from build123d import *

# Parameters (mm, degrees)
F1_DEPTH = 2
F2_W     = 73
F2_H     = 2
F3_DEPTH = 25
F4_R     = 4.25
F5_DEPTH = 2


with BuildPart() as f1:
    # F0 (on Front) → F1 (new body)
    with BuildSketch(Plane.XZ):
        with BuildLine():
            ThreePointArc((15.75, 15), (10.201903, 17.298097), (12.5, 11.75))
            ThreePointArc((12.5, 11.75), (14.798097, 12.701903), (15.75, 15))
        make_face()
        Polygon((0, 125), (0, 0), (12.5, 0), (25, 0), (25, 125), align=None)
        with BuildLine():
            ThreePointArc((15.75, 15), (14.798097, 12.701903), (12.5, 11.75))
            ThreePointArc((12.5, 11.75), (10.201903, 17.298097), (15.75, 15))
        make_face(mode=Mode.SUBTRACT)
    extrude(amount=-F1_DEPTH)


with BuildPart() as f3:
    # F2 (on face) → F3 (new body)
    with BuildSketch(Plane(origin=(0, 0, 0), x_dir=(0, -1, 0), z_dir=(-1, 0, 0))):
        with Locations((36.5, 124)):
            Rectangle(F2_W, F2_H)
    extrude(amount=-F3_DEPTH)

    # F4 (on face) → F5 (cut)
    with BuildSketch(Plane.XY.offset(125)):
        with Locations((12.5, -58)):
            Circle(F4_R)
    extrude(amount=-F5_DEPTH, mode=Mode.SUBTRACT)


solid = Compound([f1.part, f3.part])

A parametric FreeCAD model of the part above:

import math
import FreeCAD as App
import Part
import Sketcher
Q = App.Units.Quantity

doc = App.newDocument("Part")
body = doc.addObject("PartDesign::Body", "Body")

sketch1 = body.newObject("Sketcher::SketchObject", "Sketch")
sketch1.AttachmentSupport = (doc.getObject("XZ_Plane"), [""])
sketch1.MapMode = "FlatFace"
sketch1.addGeometry(Part.LineSegment(App.Vector(0, 125, 0), App.Vector(0, 0, 0)), False)
sketch1.addGeometry(Part.LineSegment(App.Vector(0, 0, 0), App.Vector(25, 0, 0)), False)
sketch1.addGeometry(Part.LineSegment(App.Vector(25, 0, 0), App.Vector(25, 125, 0)), False)
sketch1.addGeometry(Part.LineSegment(App.Vector(25, 125, 0), App.Vector(0, 125, 0)), False)
sketch1.addGeometry(Part.ArcOfCircle(Part.Circle(App.Vector(12.5, 15, 0), App.Vector(0, 0, 1), 3.2), math.radians(0), math.radians(270)), False)
sketch1.addGeometry(Part.ArcOfCircle(Part.Circle(App.Vector(12.5, 15, 0), App.Vector(0, 0, 1), 3.3), math.radians(-90), math.radians(0)), False)
sketch1.addConstraint(Sketcher.Constraint("Coincident", 0, 2, 1, 1))
sketch1.addConstraint(Sketcher.Constraint("Coincident", 1, 2, 2, 1))
sketch1.addConstraint(Sketcher.Constraint("Coincident", 2, 2, 3, 1))
sketch1.addConstraint(Sketcher.Constraint("Coincident", 3, 2, 0, 1))
sketch1.addConstraint(Sketcher.Constraint("Tangent", 4, 1, 5, 2))
sketch1.addConstraint(Sketcher.Constraint("Coincident", 5, 1, 4, 2))
sketch1.addConstraint(Sketcher.Constraint("Vertical", 0))
sketch1.addConstraint(Sketcher.Constraint("Horizontal", 1))
sketch1.addConstraint(Sketcher.Constraint("Vertical", 2))
sketch1.addConstraint(Sketcher.Constraint("Horizontal", 3))
sketch1.addConstraint(Sketcher.Constraint("Coincident", 0, 2, -1, 1))
sketch1.addConstraint(Sketcher.Constraint("Horizontal", 5, 3, 4, 1))
sketch1.addConstraint(Sketcher.Constraint("Vertical", 4, 3, 5, 1))
sketch1.addConstraint(Sketcher.Constraint("DistanceX", 1, 1, 1, 2, Q("25 mm")))
sketch1.addConstraint(Sketcher.Constraint("DistanceY", 0, 2, 0, 1, Q("125 mm")))
sketch1.addConstraint(Sketcher.Constraint("Radius", 4, Q("3.25 mm")))
sketch1.addConstraint(Sketcher.Constraint("DistanceY", -1, 1, 4, 3, Q("15 mm")))
sketch1.addConstraint(Sketcher.Constraint("DistanceX", -1, 1, 4, 3, Q("12.5 mm")))
pad1 = body.newObject("PartDesign::Pad", "Pad")
pad1.Profile = sketch1
pad1.Length = 2
pad1.Reversed = True
body2 = doc.addObject("PartDesign::Body", "Body001")

sketch2 = body2.newObject("Sketcher::SketchObject", "Sketch001")
sketch2.AttachmentSupport = (doc.getObject("YZ_Plane001"), [""])
sketch2.MapMode = "FlatFace"
sketch2.addGeometry(Part.LineSegment(App.Vector(0, 125, 0), App.Vector(0, 123, 0)), False)
sketch2.addGeometry(Part.LineSegment(App.Vector(0, 123, 0), App.Vector(-73, 123, 0)), False)
sketch2.addGeometry(Part.LineSegment(App.Vector(-73, 123, 0), App.Vector(-73, 125, 0)), False)
sketch2.addGeometry(Part.LineSegment(App.Vector(-73, 125, 0), App.Vector(0, 125, 0)), False)
sketch2.addConstraint(Sketcher.Constraint("Coincident", 0, 2, 1, 1))
sketch2.addConstraint(Sketcher.Constraint("Coincident", 1, 2, 2, 1))
sketch2.addConstraint(Sketcher.Constraint("Coincident", 2, 2, 3, 1))
sketch2.addConstraint(Sketcher.Constraint("Coincident", 3, 2, 0, 1))
sketch2.addConstraint(Sketcher.Constraint("Vertical", 0))
sketch2.addConstraint(Sketcher.Constraint("Horizontal", 1))
sketch2.addConstraint(Sketcher.Constraint("Vertical", 2))
sketch2.addConstraint(Sketcher.Constraint("Horizontal", 3))
sketch2.addConstraint(Sketcher.Constraint("PointOnObject", 0, 2, -2))
sketch2.addConstraint(Sketcher.Constraint("DistanceX", 1, 2, 1, 1, Q("73 mm")))
sketch2.addConstraint(Sketcher.Constraint("DistanceY", 0, 2, 0, 1, Q("2 mm")))
sketch2.addConstraint(Sketcher.Constraint("DistanceY", -1, 1, 0, 2, Q("123 mm")))
pad2 = body2.newObject("PartDesign::Pad", "Pad001")
pad2.Profile = sketch2
pad2.Length = 25

sketch3 = body2.newObject("Sketcher::SketchObject", "Sketch002")
sketch3.AttachmentSupport = (doc.getObject("XY_Plane001"), [""])
sketch3.MapMode = "FlatFace"
sketch3.AttachmentOffset = App.Placement(App.Vector(0, 0, 125), App.Rotation())
sketch3.addGeometry(Part.Circle(App.Vector(12.5, -58, 0), App.Vector(0, 0, 1), 4.2), False)
sketch3.addConstraint(Sketcher.Constraint("Diameter", 0, Q("8.5 mm")))
sketch3.addConstraint(Sketcher.Constraint("DistanceY", 0, 3, -1, 1, Q("58 mm")))
sketch3.addConstraint(Sketcher.Constraint("DistanceX", -1, 1, 0, 3, Q("12.5 mm")))
pocket1 = body2.newObject("PartDesign::Pocket", "Pocket")
pocket1.Profile = sketch3
pocket1.Length = 2

doc.recompute()
